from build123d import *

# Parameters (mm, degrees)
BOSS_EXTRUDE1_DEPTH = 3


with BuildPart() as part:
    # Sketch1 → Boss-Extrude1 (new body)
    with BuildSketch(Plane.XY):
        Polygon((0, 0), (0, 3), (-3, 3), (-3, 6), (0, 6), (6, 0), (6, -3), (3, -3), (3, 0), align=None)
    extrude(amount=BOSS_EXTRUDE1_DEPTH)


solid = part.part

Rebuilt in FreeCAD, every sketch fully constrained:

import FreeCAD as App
import Part
import Sketcher
Q = App.Units.Quantity


def add_polygon(sketch, points):
    """Adds a closed chain of lines whose ends are joined by coincident constraints."""
    first, n = sketch.GeometryCount, len(points)
    for a, b in zip(points, points[1:] + points[:1]):
        sketch.addGeometry(Part.LineSegment(App.Vector(*a, 0), App.Vector(*b, 0)), False)
    for i in range(n):
        sketch.addConstraint(Sketcher.Constraint("Coincident", first + i, 2, first + (i + 1) % n, 1))

doc = App.newDocument("Part")
body = doc.addObject("PartDesign::Body", "Body")

# Sketch on XY plane
sketch1 = body.newObject("Sketcher::SketchObject", "Sketch")
sketch1.AttachmentSupport = (doc.getObject("XY_Plane"), [""])
sketch1.MapMode = "FlatFace"
add_polygon(sketch1, [(0, 3), (0, 0), (3, 0), (3, -3), (6, -3), (6, 0), (0, 6), (-3, 6), (-3, 3)])  # lines 0-8
sketch1.addConstraint([
    Sketcher.Constraint("Vertical", 0),
    Sketcher.Constraint("Horizontal", 1),
    Sketcher.Constraint("Vertical", 2),
    Sketcher.Constraint("Horizontal", 3),
    Sketcher.Constraint("Vertical", 4),
    Sketcher.Constraint("Horizontal", 6),
    Sketcher.Constraint("Vertical", 7),
    Sketcher.Constraint("Horizontal", 8),
    Sketcher.Constraint("Coincident", 0, 2, -1, 1),
    Sketcher.Constraint("Symmetric", 2, 2, 7, 2, -1, 1),
    Sketcher.Constraint("PointOnObject", 4, 2, -1),
    Sketcher.Constraint("PointOnObject", 5, 2, -2),
    Sketcher.Constraint("Equal", 1, 3),
    Sketcher.Constraint("Equal", 8, 0),
    Sketcher.Constraint("Equal", 4, 7),
    Sketcher.Constraint("DistanceX", 1, 1, 1, 2, Q("3 mm")),
])
pad1 = body.newObject("PartDesign::Pad", "Pad")
pad1.Profile = sketch1
pad1.Length = 3

doc.recompute()
